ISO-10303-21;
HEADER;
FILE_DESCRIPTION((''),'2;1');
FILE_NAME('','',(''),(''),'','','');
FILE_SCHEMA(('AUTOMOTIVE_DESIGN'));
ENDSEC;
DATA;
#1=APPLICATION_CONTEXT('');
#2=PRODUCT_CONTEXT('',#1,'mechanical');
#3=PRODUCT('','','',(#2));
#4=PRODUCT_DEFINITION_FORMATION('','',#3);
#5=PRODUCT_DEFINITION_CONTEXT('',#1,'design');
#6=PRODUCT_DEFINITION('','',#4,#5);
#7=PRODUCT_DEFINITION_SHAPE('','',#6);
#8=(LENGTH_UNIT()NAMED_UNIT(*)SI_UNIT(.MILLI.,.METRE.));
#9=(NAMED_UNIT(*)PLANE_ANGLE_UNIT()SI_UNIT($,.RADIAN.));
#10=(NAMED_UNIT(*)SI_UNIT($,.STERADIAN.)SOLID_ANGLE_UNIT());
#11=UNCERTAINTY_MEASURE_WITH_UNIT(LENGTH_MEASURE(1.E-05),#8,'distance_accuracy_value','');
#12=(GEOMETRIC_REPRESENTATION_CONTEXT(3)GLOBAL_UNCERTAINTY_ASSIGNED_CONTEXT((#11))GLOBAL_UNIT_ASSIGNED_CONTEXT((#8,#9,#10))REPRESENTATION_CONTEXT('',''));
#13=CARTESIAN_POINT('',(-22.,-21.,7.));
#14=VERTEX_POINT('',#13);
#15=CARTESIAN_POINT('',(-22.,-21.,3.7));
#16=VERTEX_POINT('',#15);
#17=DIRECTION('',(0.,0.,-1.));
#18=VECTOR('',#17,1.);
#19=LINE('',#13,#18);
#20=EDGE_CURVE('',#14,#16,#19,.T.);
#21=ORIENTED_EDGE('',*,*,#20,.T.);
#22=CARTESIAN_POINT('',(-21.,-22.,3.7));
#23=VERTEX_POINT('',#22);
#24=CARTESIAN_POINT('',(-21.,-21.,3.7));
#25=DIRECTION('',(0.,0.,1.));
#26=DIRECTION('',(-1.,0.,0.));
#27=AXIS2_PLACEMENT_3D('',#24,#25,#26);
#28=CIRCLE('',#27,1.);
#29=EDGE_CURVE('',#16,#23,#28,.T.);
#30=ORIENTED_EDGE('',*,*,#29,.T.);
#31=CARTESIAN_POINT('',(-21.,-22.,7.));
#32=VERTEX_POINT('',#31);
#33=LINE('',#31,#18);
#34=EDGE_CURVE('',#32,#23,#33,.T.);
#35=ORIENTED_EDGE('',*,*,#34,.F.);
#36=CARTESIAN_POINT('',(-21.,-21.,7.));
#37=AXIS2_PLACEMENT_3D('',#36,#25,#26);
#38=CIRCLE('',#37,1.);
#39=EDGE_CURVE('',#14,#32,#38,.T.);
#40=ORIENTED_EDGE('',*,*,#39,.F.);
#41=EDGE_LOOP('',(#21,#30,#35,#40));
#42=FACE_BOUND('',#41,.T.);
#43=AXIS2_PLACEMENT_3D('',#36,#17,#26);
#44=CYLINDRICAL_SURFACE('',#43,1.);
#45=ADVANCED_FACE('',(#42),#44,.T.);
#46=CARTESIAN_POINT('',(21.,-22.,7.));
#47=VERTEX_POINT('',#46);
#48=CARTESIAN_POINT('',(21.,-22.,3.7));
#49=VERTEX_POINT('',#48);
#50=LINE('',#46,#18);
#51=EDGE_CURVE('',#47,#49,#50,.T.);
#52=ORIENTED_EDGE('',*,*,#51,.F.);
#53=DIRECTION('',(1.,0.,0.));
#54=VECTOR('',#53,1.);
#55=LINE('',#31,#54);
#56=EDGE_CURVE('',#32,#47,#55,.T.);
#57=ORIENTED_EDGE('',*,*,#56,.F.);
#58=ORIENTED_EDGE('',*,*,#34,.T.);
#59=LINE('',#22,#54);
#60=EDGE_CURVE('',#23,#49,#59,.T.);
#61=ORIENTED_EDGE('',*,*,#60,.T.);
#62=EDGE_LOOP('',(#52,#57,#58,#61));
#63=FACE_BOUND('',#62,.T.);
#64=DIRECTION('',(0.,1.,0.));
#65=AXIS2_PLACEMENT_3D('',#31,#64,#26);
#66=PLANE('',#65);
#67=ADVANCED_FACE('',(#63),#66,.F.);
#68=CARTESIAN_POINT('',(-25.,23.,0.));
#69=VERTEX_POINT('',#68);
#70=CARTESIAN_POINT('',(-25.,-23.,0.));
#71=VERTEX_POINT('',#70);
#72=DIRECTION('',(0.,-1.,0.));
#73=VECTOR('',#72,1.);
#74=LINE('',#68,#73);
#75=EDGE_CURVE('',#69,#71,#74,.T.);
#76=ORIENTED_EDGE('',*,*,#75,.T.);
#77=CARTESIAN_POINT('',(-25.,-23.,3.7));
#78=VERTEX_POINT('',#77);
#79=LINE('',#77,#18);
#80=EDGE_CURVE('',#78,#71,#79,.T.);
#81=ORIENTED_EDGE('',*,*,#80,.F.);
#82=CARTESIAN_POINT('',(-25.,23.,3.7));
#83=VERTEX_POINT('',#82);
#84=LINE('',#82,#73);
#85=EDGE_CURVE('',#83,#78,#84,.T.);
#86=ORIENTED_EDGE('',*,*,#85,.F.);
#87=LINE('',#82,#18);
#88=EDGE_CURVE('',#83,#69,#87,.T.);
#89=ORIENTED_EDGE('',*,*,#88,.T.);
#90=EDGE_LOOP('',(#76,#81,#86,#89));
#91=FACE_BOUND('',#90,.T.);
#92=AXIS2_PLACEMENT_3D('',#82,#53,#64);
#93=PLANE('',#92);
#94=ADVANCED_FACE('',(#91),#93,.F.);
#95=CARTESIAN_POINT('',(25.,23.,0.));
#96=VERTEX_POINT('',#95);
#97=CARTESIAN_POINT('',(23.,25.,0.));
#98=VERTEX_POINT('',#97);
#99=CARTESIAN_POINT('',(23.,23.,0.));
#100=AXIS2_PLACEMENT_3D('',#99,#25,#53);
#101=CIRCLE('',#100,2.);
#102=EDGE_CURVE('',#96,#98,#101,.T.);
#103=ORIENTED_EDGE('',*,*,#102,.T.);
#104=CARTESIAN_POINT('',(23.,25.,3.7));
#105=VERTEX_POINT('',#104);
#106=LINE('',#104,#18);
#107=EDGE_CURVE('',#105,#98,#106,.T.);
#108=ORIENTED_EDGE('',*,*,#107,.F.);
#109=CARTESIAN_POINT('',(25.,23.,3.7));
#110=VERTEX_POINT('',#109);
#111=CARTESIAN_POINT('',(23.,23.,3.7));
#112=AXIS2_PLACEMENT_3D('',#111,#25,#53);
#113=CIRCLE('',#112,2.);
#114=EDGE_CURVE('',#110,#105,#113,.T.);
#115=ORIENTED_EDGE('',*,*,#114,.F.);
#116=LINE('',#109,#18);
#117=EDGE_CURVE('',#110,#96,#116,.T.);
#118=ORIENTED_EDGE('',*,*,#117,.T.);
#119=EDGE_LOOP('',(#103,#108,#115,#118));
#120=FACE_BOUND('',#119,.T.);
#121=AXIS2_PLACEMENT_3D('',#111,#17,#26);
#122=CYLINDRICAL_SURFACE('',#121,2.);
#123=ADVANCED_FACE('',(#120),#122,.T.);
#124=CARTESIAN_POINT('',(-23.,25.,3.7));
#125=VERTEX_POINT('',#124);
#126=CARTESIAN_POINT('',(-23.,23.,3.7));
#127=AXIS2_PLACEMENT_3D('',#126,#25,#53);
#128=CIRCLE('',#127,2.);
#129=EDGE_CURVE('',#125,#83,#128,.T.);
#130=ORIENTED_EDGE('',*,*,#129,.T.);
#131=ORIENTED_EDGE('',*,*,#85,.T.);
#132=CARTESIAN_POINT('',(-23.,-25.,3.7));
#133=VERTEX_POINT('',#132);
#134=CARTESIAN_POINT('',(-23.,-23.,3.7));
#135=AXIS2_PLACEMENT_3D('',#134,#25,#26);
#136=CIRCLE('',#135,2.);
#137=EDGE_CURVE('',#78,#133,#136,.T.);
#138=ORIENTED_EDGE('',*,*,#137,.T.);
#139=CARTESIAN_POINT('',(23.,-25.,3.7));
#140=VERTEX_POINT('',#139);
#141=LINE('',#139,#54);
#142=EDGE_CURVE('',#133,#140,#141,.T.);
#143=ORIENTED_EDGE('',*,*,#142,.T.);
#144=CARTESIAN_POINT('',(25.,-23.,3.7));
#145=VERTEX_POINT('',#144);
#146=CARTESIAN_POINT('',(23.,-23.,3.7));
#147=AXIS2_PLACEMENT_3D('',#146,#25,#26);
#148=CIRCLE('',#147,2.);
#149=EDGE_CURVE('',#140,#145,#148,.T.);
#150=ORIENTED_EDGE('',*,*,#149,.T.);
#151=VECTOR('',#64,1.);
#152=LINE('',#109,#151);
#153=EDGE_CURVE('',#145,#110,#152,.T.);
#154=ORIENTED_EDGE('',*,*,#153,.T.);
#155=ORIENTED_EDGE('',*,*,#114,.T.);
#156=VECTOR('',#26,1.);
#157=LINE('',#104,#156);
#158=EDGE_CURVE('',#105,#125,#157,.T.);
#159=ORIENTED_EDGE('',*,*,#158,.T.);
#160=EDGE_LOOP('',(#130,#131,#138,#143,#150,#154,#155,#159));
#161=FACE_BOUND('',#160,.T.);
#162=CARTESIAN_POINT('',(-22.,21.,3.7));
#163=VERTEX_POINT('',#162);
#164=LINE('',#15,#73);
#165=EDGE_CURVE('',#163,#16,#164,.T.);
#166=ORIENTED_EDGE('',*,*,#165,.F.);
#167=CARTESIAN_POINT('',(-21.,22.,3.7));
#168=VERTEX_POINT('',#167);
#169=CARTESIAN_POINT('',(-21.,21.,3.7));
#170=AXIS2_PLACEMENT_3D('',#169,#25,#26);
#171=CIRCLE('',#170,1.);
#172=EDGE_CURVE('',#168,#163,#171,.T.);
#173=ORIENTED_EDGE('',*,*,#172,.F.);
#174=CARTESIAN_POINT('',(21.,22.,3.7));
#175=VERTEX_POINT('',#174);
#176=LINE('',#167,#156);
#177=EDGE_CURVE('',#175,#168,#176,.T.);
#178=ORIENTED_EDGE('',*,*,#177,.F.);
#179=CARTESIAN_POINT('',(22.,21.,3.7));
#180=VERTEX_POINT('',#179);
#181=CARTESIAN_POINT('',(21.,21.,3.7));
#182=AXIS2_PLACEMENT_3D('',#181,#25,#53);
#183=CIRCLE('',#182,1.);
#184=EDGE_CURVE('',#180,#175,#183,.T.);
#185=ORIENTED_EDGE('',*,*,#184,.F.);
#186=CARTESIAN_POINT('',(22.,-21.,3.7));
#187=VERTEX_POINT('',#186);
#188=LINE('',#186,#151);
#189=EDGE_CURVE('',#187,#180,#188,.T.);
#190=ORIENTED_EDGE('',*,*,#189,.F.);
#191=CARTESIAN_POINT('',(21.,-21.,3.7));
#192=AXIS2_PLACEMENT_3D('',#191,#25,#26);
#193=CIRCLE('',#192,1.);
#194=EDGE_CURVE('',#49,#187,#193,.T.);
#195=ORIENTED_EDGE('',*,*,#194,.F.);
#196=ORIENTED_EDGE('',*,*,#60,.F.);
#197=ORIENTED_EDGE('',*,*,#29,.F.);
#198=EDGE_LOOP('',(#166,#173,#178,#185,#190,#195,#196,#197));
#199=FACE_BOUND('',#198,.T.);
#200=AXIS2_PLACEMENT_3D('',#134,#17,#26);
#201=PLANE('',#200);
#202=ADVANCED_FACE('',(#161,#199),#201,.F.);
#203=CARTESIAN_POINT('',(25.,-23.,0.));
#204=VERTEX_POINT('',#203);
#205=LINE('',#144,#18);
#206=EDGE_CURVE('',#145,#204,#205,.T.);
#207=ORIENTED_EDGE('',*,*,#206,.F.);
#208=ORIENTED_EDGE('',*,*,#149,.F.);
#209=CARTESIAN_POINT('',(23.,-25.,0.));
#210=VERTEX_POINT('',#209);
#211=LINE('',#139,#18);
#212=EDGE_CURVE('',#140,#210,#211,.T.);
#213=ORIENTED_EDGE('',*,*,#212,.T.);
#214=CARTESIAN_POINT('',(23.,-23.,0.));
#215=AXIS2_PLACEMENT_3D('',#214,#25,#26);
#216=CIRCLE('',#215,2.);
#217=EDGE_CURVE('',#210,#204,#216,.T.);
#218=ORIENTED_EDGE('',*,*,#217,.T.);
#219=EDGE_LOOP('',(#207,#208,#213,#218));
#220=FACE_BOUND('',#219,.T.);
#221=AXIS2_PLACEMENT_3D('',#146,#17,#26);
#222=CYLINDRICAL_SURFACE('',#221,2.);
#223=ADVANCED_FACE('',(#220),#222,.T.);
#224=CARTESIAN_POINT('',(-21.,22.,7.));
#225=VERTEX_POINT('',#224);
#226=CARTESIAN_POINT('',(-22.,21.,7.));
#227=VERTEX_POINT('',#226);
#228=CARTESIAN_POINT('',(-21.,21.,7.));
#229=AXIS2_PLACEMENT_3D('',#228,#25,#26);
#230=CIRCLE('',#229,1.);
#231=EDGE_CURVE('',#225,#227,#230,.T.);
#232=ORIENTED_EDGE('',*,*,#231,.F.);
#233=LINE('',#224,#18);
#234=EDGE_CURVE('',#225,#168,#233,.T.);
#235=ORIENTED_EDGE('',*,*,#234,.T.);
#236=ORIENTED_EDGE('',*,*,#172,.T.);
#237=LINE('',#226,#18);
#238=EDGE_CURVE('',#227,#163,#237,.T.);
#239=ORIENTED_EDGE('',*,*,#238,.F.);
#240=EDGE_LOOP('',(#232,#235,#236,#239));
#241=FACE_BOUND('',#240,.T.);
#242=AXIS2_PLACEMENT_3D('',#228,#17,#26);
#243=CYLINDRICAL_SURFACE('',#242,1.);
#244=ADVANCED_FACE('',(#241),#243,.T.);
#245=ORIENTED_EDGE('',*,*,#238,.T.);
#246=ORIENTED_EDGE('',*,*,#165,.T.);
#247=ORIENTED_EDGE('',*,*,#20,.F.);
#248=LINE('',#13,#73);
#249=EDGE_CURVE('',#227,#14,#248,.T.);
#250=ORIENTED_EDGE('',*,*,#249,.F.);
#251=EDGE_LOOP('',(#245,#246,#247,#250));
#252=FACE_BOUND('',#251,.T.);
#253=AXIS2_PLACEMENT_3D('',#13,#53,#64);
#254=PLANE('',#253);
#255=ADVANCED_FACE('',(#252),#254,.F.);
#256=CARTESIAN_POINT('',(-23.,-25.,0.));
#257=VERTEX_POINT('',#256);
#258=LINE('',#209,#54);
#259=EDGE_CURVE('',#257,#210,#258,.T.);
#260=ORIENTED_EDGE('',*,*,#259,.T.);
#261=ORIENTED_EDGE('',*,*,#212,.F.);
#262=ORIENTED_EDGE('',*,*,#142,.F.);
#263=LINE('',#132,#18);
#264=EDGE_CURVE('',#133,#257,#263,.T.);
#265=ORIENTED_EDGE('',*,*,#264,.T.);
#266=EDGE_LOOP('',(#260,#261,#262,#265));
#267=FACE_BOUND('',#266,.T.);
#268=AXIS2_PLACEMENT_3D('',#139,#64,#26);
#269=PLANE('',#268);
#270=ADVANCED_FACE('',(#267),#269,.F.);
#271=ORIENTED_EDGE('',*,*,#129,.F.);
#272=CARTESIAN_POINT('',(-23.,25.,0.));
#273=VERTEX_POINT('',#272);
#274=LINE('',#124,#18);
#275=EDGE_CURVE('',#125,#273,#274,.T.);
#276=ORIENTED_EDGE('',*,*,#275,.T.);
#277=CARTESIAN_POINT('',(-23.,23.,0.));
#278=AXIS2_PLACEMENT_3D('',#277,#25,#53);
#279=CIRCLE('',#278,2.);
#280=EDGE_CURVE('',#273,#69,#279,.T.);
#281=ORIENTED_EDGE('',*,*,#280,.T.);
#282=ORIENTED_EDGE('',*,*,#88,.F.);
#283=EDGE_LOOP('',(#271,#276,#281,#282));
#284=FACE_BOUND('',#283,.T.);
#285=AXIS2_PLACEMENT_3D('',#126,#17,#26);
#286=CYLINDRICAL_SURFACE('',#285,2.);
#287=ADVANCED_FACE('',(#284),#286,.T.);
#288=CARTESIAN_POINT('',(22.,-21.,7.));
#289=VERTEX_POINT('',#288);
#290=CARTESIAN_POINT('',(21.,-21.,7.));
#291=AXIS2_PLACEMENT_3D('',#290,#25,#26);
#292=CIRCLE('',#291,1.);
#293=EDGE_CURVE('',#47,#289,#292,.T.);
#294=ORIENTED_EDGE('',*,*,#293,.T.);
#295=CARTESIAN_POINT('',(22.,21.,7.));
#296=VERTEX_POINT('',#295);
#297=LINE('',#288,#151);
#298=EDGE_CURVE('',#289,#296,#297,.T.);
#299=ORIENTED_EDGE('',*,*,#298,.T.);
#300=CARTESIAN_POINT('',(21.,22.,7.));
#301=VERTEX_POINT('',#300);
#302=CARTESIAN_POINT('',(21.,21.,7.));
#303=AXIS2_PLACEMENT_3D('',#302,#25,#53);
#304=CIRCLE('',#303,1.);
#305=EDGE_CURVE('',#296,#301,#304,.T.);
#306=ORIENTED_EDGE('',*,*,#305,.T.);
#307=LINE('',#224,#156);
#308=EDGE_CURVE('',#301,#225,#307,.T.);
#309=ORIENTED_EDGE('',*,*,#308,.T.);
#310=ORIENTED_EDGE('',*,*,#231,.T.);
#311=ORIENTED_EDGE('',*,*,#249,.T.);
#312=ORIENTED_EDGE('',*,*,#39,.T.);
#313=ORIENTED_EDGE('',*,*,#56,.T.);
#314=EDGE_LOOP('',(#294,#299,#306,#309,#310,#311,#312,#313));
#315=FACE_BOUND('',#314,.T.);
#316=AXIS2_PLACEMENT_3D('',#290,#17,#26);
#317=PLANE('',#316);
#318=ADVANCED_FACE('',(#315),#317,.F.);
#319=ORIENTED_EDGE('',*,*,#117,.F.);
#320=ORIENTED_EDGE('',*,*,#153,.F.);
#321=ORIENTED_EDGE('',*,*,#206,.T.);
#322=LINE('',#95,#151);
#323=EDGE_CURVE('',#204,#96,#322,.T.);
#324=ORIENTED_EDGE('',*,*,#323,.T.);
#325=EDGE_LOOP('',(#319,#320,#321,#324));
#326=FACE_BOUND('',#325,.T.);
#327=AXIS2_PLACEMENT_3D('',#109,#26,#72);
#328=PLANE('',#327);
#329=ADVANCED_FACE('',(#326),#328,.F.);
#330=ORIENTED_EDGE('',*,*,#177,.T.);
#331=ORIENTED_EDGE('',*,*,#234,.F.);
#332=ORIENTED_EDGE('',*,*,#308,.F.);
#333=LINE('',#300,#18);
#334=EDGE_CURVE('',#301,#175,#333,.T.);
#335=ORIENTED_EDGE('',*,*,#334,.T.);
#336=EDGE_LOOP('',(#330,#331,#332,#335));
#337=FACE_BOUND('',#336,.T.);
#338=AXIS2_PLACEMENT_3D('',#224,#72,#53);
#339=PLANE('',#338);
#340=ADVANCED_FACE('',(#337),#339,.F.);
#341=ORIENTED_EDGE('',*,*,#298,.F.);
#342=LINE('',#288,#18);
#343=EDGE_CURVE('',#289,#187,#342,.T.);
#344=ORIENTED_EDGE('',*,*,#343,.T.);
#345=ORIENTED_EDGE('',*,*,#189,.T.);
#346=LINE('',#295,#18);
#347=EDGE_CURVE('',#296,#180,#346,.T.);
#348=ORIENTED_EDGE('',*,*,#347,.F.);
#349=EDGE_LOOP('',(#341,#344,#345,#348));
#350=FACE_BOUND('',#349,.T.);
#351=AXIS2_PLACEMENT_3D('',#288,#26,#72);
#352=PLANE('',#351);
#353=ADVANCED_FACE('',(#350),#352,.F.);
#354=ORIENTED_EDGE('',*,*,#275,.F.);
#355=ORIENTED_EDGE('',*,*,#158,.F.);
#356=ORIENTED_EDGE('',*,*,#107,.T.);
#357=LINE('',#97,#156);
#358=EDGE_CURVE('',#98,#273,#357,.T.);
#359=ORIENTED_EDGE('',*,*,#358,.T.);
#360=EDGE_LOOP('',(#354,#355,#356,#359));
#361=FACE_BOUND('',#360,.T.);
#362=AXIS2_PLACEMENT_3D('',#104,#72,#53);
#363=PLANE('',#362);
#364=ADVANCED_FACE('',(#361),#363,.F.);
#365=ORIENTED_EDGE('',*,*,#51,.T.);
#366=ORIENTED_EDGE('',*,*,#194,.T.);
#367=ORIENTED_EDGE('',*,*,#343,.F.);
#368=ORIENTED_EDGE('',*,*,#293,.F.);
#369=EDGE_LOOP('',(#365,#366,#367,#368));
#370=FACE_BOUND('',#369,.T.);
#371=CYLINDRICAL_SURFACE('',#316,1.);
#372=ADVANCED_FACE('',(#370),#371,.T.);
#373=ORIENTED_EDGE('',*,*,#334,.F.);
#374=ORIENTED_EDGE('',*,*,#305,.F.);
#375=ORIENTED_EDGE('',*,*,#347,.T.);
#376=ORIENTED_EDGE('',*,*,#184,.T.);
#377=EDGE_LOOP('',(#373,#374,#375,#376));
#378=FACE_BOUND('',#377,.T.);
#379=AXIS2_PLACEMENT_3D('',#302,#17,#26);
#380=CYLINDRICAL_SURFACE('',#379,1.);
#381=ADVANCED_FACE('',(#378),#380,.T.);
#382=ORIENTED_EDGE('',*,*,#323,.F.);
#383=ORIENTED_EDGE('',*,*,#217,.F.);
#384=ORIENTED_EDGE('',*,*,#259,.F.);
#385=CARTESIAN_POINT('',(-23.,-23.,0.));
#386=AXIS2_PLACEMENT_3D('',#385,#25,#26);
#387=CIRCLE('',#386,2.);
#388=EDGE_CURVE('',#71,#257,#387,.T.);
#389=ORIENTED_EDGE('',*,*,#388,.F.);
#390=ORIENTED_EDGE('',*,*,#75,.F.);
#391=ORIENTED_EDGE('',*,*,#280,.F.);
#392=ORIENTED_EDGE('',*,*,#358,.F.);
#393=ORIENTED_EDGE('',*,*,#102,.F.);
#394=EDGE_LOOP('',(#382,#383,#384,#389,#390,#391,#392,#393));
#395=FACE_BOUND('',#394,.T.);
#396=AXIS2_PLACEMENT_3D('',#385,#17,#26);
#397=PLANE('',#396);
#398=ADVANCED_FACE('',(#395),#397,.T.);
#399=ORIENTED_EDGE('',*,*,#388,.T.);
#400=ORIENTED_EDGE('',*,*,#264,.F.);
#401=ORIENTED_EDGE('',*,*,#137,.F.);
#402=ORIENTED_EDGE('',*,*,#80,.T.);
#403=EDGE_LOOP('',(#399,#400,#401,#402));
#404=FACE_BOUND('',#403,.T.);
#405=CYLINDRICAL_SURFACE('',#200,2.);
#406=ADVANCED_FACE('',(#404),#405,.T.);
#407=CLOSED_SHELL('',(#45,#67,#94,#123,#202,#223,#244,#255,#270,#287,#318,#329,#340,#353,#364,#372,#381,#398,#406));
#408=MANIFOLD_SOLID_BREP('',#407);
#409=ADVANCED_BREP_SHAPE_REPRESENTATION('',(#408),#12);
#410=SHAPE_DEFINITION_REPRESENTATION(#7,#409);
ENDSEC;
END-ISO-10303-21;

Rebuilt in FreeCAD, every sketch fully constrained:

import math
import FreeCAD as App
import Part
import Sketcher

doc = App.newDocument("Part")
params = doc.addObject("Spreadsheet::Sheet", "Params")
for row, (alias, value) in enumerate([
    ("sketch1_radius", "2 mm"),
    ("sketch1_width", "46 mm"),
    ("pad1_length", "3.7 mm"),
    ("sketch2_radius", "1 mm"),
    ("sketch2_width", "42 mm"),
    ("pad2_length", "3.3 mm"),
], start=1):
    params.set(f"A{row}", alias)
    params.set(f"B{row}", "=" + value)
    params.setAlias(f"B{row}", alias)

body = doc.addObject("PartDesign::Body", "Body")

# Sketch on XY plane
sketch1 = doc.addObject("Sketcher::SketchObject", "Sketch")
body.addObject(sketch1)
sketch1.AttachmentSupport = (doc.XY_Plane, [""])
sketch1.MapMode = "FlatFace"
sketch1.addGeometry([
    Part.LineSegment(App.Vector(-23, -25, 0), App.Vector(23, -25, 0)),  # 0
    Part.ArcOfCircle(Part.Circle(App.Vector(23, -23, 0), App.Vector(0, 0, 1), 2), math.radians(-90), math.radians(0)),  # 1
    Part.LineSegment(App.Vector(25, -23, 0), App.Vector(25, 23, 0)),  # 2
    Part.ArcOfCircle(Part.Circle(App.Vector(23, 23, 0), App.Vector(0, 0, 1), 2), math.radians(0), math.radians(90)),  # 3
    Part.LineSegment(App.Vector(23, 25, 0), App.Vector(-23, 25, 0)),  # 4
    Part.ArcOfCircle(Part.Circle(App.Vector(-23, 23, 0), App.Vector(0, 0, 1), 2), math.radians(90), math.radians(180)),  # 5
    Part.LineSegment(App.Vector(-25, 23, 0), App.Vector(-25, -23, 0)),  # 6
    Part.ArcOfCircle(Part.Circle(App.Vector(-23, -23, 0), App.Vector(0, 0, 1), 2), math.radians(180), math.radians(270)),  # 7
], False)
sketch1.addConstraint([
    Sketcher.Constraint("Tangent", 0, 2, 1, 1),
    Sketcher.Constraint("Tangent", 1, 2, 2, 1),
    Sketcher.Constraint("Tangent", 2, 2, 3, 1),
    Sketcher.Constraint("Tangent", 3, 2, 4, 1),
    Sketcher.Constraint("Tangent", 4, 2, 5, 1),
    Sketcher.Constraint("Tangent", 5, 2, 6, 1),
    Sketcher.Constraint("Tangent", 6, 2, 7, 1),
    Sketcher.Constraint("Tangent", 7, 2, 0, 1),
    Sketcher.Constraint("Horizontal", 0),
    Sketcher.Constraint("Vertical", 2),
    Sketcher.Constraint("Horizontal", 4),
    Sketcher.Constraint("Vertical", 6),
    Sketcher.Constraint("Equal", 1, 3),
    Sketcher.Constraint("Equal", 3, 5),
    Sketcher.Constraint("Equal", 5, 7),
    Sketcher.Constraint("Symmetric", 1, 3, 5, 3, -1, 1),
    Sketcher.Constraint("Equal", 4, 2),
    Sketcher.Constraint("Radius", 1, 2.0),
    Sketcher.Constraint("DistanceX", 0, 1, 0, 2, 46.0),
])
sketch1.setExpression("Constraints[17]", "Params.sketch1_radius")
sketch1.setExpression("Constraints[18]", "Params.sketch1_width")
pad1 = doc.addObject("PartDesign::Pad", "Pad")
body.addObject(pad1)
pad1.Profile = sketch1
pad1.setExpression("Length", "Params.pad1_length")

# Sketch on XY plane
sketch2 = doc.addObject("Sketcher::SketchObject", "Sketch001")
body.addObject(sketch2)
sketch2.AttachmentSupport = (doc.XY_Plane, [""])
sketch2.MapMode = "FlatFace"
sketch2.AttachmentOffset = App.Placement(App.Vector(0, 0, 3.7), App.Rotation())
sketch2.addGeometry([
    Part.LineSegment(App.Vector(-22, 21, 0), App.Vector(-22, -21, 0)),  # 0
    Part.ArcOfCircle(Part.Circle(App.Vector(-21, -21, 0), App.Vector(0, 0, 1), 1), math.radians(180), math.radians(270)),  # 1
    Part.LineSegment(App.Vector(-21, -22, 0), App.Vector(21, -22, 0)),  # 2
    Part.ArcOfCircle(Part.Circle(App.Vector(21, -21, 0), App.Vector(0, 0, 1), 1), math.radians(-90), math.radians(0)),  # 3
    Part.LineSegment(App.Vector(22, -21, 0), App.Vector(22, 21, 0)),  # 4
    Part.ArcOfCircle(Part.Circle(App.Vector(21, 21, 0), App.Vector(0, 0, 1), 1), math.radians(0), math.radians(90)),  # 5
    Part.LineSegment(App.Vector(21, 22, 0), App.Vector(-21, 22, 0)),  # 6
    Part.ArcOfCircle(Part.Circle(App.Vector(-21, 21, 0), App.Vector(0, 0, 1), 1), math.radians(90), math.radians(180)),  # 7
], False)
sketch2.addConstraint([
    Sketcher.Constraint("Tangent", 0, 2, 1, 1),
    Sketcher.Constraint("Tangent", 1, 2, 2, 1),
    Sketcher.Constraint("Tangent", 2, 2, 3, 1),
    Sketcher.Constraint("Tangent", 3, 2, 4, 1),
    Sketcher.Constraint("Tangent", 4, 2, 5, 1),
    Sketcher.Constraint("Tangent", 5, 2, 6, 1),
    Sketcher.Constraint("Tangent", 6, 2, 7, 1),
    Sketcher.Constraint("Tangent", 7, 2, 0, 1),
    Sketcher.Constraint("Vertical", 0),
    Sketcher.Constraint("Horizontal", 2),
    Sketcher.Constraint("Vertical", 4),
    Sketcher.Constraint("Horizontal", 6),
    Sketcher.Constraint("Equal", 1, 3),
    Sketcher.Constraint("Equal", 3, 5),
    Sketcher.Constraint("Equal", 5, 7),
    Sketcher.Constraint("Symmetric", 1, 3, 5, 3, -1, 1),
    Sketcher.Constraint("Equal", 6, 0),
    Sketcher.Constraint("Radius", 1, 1.0),
    Sketcher.Constraint("DistanceX", 2, 1, 2, 2, 42.0),
])
sketch2.setExpression("Constraints[17]", "Params.sketch2_radius")
sketch2.setExpression("Constraints[18]", "Params.sketch2_width")
pad2 = doc.addObject("PartDesign::Pad", "Pad001")
body.addObject(pad2)
pad2.Profile = sketch2
pad2.setExpression("Length", "Params.pad2_length")

doc.recompute()
